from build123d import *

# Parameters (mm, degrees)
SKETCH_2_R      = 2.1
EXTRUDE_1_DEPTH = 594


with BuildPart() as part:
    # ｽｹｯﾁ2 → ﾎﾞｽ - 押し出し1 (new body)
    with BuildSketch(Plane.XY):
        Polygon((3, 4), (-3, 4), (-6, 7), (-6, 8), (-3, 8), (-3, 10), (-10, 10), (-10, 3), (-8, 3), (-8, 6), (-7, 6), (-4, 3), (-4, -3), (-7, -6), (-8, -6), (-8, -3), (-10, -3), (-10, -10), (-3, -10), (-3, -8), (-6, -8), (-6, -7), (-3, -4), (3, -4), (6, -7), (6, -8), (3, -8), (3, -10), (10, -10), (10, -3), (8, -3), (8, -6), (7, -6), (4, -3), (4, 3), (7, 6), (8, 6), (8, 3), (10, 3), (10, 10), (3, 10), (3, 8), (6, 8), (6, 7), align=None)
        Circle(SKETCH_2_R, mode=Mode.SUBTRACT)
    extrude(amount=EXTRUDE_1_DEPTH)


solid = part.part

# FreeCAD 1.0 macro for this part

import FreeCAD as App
import Part
import Sketcher
Q = App.Units.Quantity


def add_polygon(sketch, points):
    """Adds a closed chain of lines whose ends are joined by coincident constraints."""
    first, n = sketch.GeometryCount, len(points)
    for a, b in zip(points, points[1:] + points[:1]):
        sketch.addGeometry(Part.LineSegment(App.Vector(*a, 0), App.Vector(*b, 0)), False)
    for i in range(n):
        sketch.addConstraint(Sketcher.Constraint("Coincident", first + i, 2, first + (i + 1) % n, 1))

doc = App.newDocument("Part")
body = doc.addObject("PartDesign::Body", "Body")

# Sketch on XY plane
sketch1 = body.newObject("Sketcher::SketchObject", "Sketch")
sketch1.AttachmentSupport = (doc.getObject("XY_Plane"), [""])
sketch1.MapMode = "FlatFace"
add_polygon(sketch1, [(3, 4), (-3, 4), (-6, 7), (-6, 8), (-3, 8), (-3, 10), (-10, 10), (-10, 3), (-8, 3), (-8, 6), (-7, 6), (-4, 3), (-4, -3), (-7, -6), (-8, -6), (-8, -3), (-10, -3), (-10, -10), (-3, -10), (-3, -8), (-6, -8), (-6, -7), (-3, -4), (3, -4), (6, -7), (6, -8), (3, -8), (3, -10), (10, -10), (10, -3), (8, -3), (8, -6), (7, -6), (4, -3), (4, 3), (7, 6), (8, 6), (8, 3), (10, 3), (10, 10), (3, 10), (3, 8), (6, 8), (6, 7)])  # lines 0-43
sketch1.addGeometry(Part.Circle(App.Vector(0, 0, 0), App.Vector(0, 0, 1), 2.1), False)  # 44
sketch1.addConstraint([
    Sketcher.Constraint("Horizontal", 0),
    Sketcher.Constraint("Vertical", 2),
    Sketcher.Constraint("Horizontal", 3),
    Sketcher.Constraint("Vertical", 4),
    Sketcher.Constraint("Horizontal", 5),
    Sketcher.Constraint("Vertical", 6),
    Sketcher.Constraint("Horizontal", 7),
    Sketcher.Constraint("Vertical", 8),
    Sketcher.Constraint("Horizontal", 9),
    Sketcher.Constraint("Vertical", 11),
    Sketcher.Constraint("Horizontal", 13),
    Sketcher.Constraint("Vertical", 14),
    Sketcher.Constraint("Horizontal", 15),
    Sketcher.Constraint("Vertical", 16),
    Sketcher.Constraint("Horizontal", 17),
    Sketcher.Constraint("Vertical", 18),
    Sketcher.Constraint("Horizontal", 19),
    Sketcher.Constraint("Vertical", 20),
    Sketcher.Constraint("Horizontal", 22),
    Sketcher.Constraint("Vertical", 24),
    Sketcher.Constraint("Horizontal", 25),
    Sketcher.Constraint("Vertical", 26),
    Sketcher.Constraint("Horizontal", 27),
    Sketcher.Constraint("Vertical", 28),
    Sketcher.Constraint("Horizontal", 29),
    Sketcher.Constraint("Vertical", 30),
    Sketcher.Constraint("Horizontal", 31),
    Sketcher.Constraint("Vertical", 33),
    Sketcher.Constraint("Horizontal", 35),
    Sketcher.Constraint("Vertical", 36),
    Sketcher.Constraint("Horizontal", 37),
    Sketcher.Constraint("Vertical", 38),
    Sketcher.Constraint("Horizontal", 39),
    Sketcher.Constraint("Vertical", 40),
    Sketcher.Constraint("Horizontal", 41),
    Sketcher.Constraint("Vertical", 42),
    Sketcher.Constraint("Coincident", 44, 3, -1, 1),
    Sketcher.Constraint("Symmetric", 0, 2, 22, 2, -1, 1),
    Sketcher.Constraint("Symmetric", 1, 2, 23, 2, -1, 1),
    Sketcher.Constraint("Symmetric", 3, 2, 25, 2, -1, 1),
    Sketcher.Constraint("Symmetric", 5, 2, 27, 2, -1, 1),
    Sketcher.Constraint("Symmetric", 7, 2, 29, 2, -1, 1),
    Sketcher.Constraint("Symmetric", 9, 2, 31, 2, -1, 1),
    Sketcher.Constraint("Symmetric", 10, 2, 32, 2, -1, 1),
    Sketcher.Constraint("Symmetric", 12, 2, 34, 2, -1, 1),
    Sketcher.Constraint("Symmetric", 14, 2, 36, 2, -1, 1),
    Sketcher.Constraint("Symmetric", 16, 2, 38, 2, -1, 1),
    Sketcher.Constraint("Symmetric", 18, 2, 40, 2, -1, 1),
    Sketcher.Constraint("Symmetric", 20, 2, 42, 2, -1, 1),
    Sketcher.Constraint("Symmetric", 20, 2, 23, 2, -2),
    Sketcher.Constraint("Symmetric", 18, 2, 25, 2, -2),
    Sketcher.Constraint("Symmetric", 16, 2, 27, 2, -2),
    Sketcher.Constraint("Symmetric", 14, 2, 29, 2, -2),
    Sketcher.Constraint("Symmetric", 12, 2, 31, 2, -2),
    Sketcher.Constraint("Parallel", 1, 10),
    Sketcher.Constraint("Perpendicular", 10, 12),
    Sketcher.Constraint("Parallel", 12, 21),
    Sketcher.Constraint("Perpendicular", 32, 34),
    Sketcher.Constraint("Parallel", 34, 43),
    Sketcher.Constraint("Horizontal", 7, 2, 10, 2),
    Sketcher.Constraint("Horizontal", 11, 2, 14, 2),
    Sketcher.Constraint("Vertical", 0, 2, 3, 2),
    Sketcher.Constraint("Equal", 35, 2),
    Sketcher.Constraint("Equal", 37, 4),
    Sketcher.Constraint("Equal", 39, 6),
    Sketcher.Constraint("Equal", 41, 8),
    Sketcher.Constraint("Equal", 22, 11),
    Sketcher.Constraint("Diameter", 44, Q("4.2 mm")),
    Sketcher.Constraint("DistanceX", 0, 2, 0, 1, Q("6 mm")),
    Sketcher.Constraint("DistanceX", 3, 1, 3, 2, Q("3 mm")),
    Sketcher.Constraint("DistanceX", 5, 2, 5, 1, Q("7 mm")),
    Sketcher.Constraint("DistanceX", 7, 1, 7, 2, Q("2 mm")),
    Sketcher.Constraint("DistanceX", 9, 1, 9, 2, Q("1 mm")),
])
pad1 = body.newObject("PartDesign::Pad", "Pad")
pad1.Profile = sketch1
pad1.Length = 594

doc.recompute()
